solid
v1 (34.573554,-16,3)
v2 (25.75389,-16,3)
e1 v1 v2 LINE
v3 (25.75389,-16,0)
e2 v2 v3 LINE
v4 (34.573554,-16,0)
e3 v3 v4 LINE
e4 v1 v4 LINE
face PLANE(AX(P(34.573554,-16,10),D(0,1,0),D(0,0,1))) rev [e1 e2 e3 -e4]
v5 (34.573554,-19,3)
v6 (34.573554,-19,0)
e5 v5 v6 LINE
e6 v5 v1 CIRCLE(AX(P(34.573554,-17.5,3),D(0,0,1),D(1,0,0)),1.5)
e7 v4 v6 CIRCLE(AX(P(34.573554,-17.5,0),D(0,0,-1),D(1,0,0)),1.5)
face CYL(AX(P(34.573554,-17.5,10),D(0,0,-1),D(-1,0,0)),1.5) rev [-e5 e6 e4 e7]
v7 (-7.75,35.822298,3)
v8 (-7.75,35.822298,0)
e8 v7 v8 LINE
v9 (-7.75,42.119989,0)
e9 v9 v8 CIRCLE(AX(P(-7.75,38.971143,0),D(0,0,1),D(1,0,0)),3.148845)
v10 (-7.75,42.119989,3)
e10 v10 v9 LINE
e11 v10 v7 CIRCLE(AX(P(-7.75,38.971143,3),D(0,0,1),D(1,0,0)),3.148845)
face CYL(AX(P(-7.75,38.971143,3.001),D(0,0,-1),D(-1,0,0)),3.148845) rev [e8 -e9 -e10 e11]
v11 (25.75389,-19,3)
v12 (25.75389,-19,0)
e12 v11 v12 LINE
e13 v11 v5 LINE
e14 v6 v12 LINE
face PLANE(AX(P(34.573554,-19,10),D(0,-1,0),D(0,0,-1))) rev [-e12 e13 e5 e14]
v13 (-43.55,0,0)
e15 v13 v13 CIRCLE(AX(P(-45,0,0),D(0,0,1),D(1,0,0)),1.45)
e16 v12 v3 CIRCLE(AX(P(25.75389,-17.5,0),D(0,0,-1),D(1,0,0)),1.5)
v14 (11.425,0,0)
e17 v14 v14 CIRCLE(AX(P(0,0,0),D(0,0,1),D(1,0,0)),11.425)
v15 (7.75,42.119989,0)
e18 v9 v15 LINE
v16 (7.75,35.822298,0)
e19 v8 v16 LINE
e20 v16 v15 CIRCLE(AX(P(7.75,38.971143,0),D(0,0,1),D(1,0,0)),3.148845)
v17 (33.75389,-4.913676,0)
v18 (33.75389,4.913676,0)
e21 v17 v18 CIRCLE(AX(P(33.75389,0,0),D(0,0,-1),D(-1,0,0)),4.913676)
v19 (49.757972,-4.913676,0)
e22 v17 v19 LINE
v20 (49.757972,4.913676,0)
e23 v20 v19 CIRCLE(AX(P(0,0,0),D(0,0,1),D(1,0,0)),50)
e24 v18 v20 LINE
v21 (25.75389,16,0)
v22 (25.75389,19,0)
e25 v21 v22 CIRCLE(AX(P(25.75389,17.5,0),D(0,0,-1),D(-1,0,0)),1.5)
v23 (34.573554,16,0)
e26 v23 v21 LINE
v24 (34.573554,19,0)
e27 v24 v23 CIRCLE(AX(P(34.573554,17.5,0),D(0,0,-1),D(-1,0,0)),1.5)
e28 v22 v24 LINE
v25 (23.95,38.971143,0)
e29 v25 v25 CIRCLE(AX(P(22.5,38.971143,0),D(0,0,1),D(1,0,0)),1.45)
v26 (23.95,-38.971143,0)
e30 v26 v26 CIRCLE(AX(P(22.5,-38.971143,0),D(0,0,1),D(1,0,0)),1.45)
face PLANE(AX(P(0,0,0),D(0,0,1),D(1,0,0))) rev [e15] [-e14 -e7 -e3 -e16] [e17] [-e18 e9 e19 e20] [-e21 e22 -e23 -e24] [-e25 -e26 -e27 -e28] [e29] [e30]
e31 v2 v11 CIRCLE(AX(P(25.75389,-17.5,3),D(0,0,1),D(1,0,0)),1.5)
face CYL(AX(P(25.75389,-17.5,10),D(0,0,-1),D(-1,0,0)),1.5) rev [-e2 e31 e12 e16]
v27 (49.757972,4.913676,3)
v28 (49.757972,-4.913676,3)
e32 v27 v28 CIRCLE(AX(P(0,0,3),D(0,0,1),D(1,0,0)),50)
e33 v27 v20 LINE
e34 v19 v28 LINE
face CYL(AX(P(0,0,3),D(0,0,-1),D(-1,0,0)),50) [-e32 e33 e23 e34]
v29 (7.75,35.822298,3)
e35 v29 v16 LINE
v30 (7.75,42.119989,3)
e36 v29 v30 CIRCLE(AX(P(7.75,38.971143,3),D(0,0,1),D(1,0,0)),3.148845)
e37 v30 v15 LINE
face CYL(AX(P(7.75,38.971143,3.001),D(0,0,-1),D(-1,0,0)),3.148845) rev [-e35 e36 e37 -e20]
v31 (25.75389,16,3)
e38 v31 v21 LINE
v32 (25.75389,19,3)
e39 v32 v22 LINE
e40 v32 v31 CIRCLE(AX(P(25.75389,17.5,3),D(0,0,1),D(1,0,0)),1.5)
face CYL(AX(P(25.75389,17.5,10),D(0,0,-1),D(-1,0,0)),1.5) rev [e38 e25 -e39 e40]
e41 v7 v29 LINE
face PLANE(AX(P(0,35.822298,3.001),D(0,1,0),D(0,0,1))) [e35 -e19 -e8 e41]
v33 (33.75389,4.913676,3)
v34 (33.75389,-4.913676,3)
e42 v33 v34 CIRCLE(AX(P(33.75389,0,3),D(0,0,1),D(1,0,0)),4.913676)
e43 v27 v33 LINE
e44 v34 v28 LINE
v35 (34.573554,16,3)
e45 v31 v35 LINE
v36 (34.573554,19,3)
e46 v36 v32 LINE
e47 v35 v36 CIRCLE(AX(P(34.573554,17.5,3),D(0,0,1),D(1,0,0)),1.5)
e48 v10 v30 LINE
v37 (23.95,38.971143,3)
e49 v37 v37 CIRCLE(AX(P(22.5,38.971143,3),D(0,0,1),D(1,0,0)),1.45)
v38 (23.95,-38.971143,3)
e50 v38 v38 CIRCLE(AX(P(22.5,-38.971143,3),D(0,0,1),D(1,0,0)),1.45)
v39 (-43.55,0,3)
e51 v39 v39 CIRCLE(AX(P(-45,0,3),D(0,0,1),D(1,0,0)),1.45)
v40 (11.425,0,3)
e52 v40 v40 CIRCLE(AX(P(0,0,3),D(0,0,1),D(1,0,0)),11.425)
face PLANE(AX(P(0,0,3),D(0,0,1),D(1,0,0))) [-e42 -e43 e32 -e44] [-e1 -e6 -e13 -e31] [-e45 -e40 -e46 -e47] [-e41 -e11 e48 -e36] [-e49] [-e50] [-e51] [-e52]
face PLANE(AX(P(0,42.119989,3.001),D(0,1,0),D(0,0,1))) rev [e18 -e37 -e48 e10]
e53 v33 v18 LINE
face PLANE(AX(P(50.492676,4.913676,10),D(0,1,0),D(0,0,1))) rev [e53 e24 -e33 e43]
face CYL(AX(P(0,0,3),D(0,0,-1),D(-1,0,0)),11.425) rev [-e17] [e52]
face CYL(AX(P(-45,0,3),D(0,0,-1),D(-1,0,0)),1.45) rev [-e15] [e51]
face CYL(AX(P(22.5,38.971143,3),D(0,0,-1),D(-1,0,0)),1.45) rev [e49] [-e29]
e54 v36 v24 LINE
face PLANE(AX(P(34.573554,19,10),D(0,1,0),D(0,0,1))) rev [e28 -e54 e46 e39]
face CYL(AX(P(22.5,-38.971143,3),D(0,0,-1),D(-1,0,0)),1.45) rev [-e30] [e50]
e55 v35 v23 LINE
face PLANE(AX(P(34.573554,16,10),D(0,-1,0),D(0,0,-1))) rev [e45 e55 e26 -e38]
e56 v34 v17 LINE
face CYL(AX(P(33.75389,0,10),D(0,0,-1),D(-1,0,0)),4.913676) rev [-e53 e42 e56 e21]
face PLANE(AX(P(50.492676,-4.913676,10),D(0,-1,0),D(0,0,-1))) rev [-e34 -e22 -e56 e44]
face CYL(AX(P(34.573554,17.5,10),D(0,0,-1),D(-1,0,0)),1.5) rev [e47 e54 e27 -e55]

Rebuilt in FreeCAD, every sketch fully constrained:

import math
import FreeCAD as App
import Part
import Sketcher
from FreeCAD import Vector

doc = App.newDocument("Part")
body = doc.addObject("PartDesign::Body", "Body")

# Sketch on XY plane
sketch1 = body.newObject("Sketcher::SketchObject", "Sketch")
sketch1.AttachmentSupport = (doc.getObject("XY_Plane"), [""])
sketch1.MapMode = "FlatFace"
sketch1.addGeometry([
    Part.Circle(Vector(0, 0, 0), Vector(0, 0, 1), 50),  # 0
    Part.Circle(Vector(-45, 0, 0), Vector(0, 0, 1), 1.45),  # 1
    Part.Circle(Vector(22.5, -38.971143, 0), Vector(0, 0, 1), 1.45),  # 2
    Part.Circle(Vector(0, 0, 0), Vector(0, 0, 1), 11.425),  # 3
    Part.Circle(Vector(22.5, 38.971143, 0), Vector(0, 0, 1), 1.45),  # 4
], False)
sketch1.addConstraint([
    Sketcher.Constraint("Coincident", 0, 3, -1, 1),
    Sketcher.Constraint("Coincident", 3, 3, -1, 1),
    Sketcher.Constraint("Equal", 1, 2),
    Sketcher.Constraint("Equal", 2, 4),
    Sketcher.Constraint("Symmetric", 2, 3, 4, 3, -1),
    Sketcher.Constraint("PointOnObject", 1, 3, -1),
    Sketcher.Constraint("Diameter", 0, 100.0),
    Sketcher.Constraint("Diameter", 1, 2.9),
    Sketcher.Constraint("Diameter", 3, 22.85),
    Sketcher.Constraint("DistanceX", 1, 3, -1, 1, 45.0),
    Sketcher.Constraint("DistanceX", -1, 1, 2, 3, 22.5),
    Sketcher.Constraint("DistanceY", 2, 3, -1, 1, 38.971143),
])
pad1 = body.newObject("PartDesign::Pad", "Pad")
pad1.Profile = sketch1
pad1.Length = 3

# Sketch on XY plane
sketch2 = body.newObject("Sketcher::SketchObject", "Sketch001")
sketch2.AttachmentSupport = (doc.getObject("XY_Plane"), [""])
sketch2.MapMode = "FlatFace"
sketch2.addGeometry([
    Part.LineSegment(Vector(-7.75, 35.822298, 0), Vector(7.75, 35.822298, 0)),
    Part.ArcOfCircle(Part.Circle(Vector(7.75, 38.971143, 0), Vector(0, 0, 1), 3.148845), math.radians(-90), math.radians(90)),
    Part.LineSegment(Vector(7.75, 42.119989, 0), Vector(-7.75, 42.119989, 0)),
    Part.ArcOfCircle(Part.Circle(Vector(-7.75, 38.971143, 0), Vector(0, 0, 1), 3.148845), math.radians(90), math.radians(270)),
], False)
sketch2.addConstraint([
    Sketcher.Constraint("Tangent", 0, 2, 1, 1),
    Sketcher.Constraint("Tangent", 1, 2, 2, 1),
    Sketcher.Constraint("Tangent", 2, 2, 3, 1),
    Sketcher.Constraint("Tangent", 3, 2, 0, 1),
    Sketcher.Constraint("Horizontal", 0),
    Sketcher.Constraint("Horizontal", 2),
    Sketcher.Constraint("DistanceX", 0, 1, 0, 2, 15.5),
    Sketcher.Constraint("DistanceX", -1, 1, 1, 3, 7.75),
    Sketcher.Constraint("Radius", 1, 3.148845),
    Sketcher.Constraint("DistanceY", -1, 1, 1, 2, 42.119989),
])
pocket1 = body.newObject("PartDesign::Pocket", "Pocket")
pocket1.Profile = sketch2
pocket1.Type = "UpToFirst"
pocket1.Reversed = True

# Sketch on XY plane
sketch3 = body.newObject("Sketcher::SketchObject", "Sketch002")
sketch3.AttachmentSupport = (doc.getObject("XY_Plane"), [""])
sketch3.MapMode = "FlatFace"
sketch3.addGeometry([
    Part.LineSegment(Vector(33.75389, 4.913676, 0), Vector(50.492676, 4.913676, 0)),  # 0
    Part.ArcOfCircle(Part.Circle(Vector(50.492676, 0, 0), Vector(0, 0, 1), 4.913676), math.radians(-90), math.radians(90)),  # 1
    Part.LineSegment(Vector(50.492676, -4.913676, 0), Vector(33.75389, -4.913676, 0)),  # 2
    Part.ArcOfCircle(Part.Circle(Vector(33.75389, 0, 0), Vector(0, 0, 1), 4.913676), math.radians(90), math.radians(270)),  # 3
    Part.LineSegment(Vector(25.75389, 19, 0), Vector(34.573554, 19, 0)),  # 4
    Part.ArcOfCircle(Part.Circle(Vector(34.573554, 17.5, 0), Vector(0, 0, 1), 1.5), math.radians(-90), math.radians(90)),  # 5
    Part.LineSegment(Vector(34.573554, 16, 0), Vector(25.75389, 16, 0)),  # 6
    Part.ArcOfCircle(Part.Circle(Vector(25.75389, 17.5, 0), Vector(0, 0, 1), 1.5), math.radians(90), math.radians(270)),  # 7
    Part.LineSegment(Vector(34.573554, -19, 0), Vector(25.75389, -19, 0)),  # 8
    Part.ArcOfCircle(Part.Circle(Vector(25.75389, -17.5, 0), Vector(0, 0, 1), 1.5), math.radians(90), math.radians(270)),  # 9
    Part.LineSegment(Vector(25.75389, -16, 0), Vector(34.573554, -16, 0)),  # 10
    Part.ArcOfCircle(Part.Circle(Vector(34.573554, -17.5, 0), Vector(0, 0, 1), 1.5), math.radians(-90), math.radians(90)),  # 11
], False)
sketch3.addConstraint([
    Sketcher.Constraint("Tangent", 0, 2, 1, 2),
    Sketcher.Constraint("Tangent", 1, 1, 2, 1),
    Sketcher.Constraint("Tangent", 2, 2, 3, 2),
    Sketcher.Constraint("Tangent", 3, 1, 0, 1),
    Sketcher.Constraint("Tangent", 4, 2, 5, 2),
    Sketcher.Constraint("Tangent", 5, 1, 6, 1),
    Sketcher.Constraint("Tangent", 6, 2, 7, 2),
    Sketcher.Constraint("Tangent", 7, 1, 4, 1),
    Sketcher.Constraint("Tangent", 8, 2, 9, 2),
    Sketcher.Constraint("Tangent", 9, 1, 10, 1),
    Sketcher.Constraint("Tangent", 10, 2, 11, 2),
    Sketcher.Constraint("Tangent", 11, 1, 8, 1),
    Sketcher.Constraint("Horizontal", 0),
    Sketcher.Constraint("Horizontal", 2),
    Sketcher.Constraint("Horizontal", 4),
    Sketcher.Constraint("Horizontal", 6),
    Sketcher.Constraint("Horizontal", 8),
    Sketcher.Constraint("Horizontal", 10),
    Sketcher.Constraint("Equal", 7, 9),
    Sketcher.Constraint("Symmetric", 7, 3, 9, 3, -1),
    Sketcher.Constraint("PointOnObject", 1, 3, -1),
    Sketcher.Constraint("Vertical", 5, 3, 11, 3),
    Sketcher.Constraint("Radius", 5, 1.5),
    Sketcher.Constraint("DistanceY", -1, 1, 4, 2, 19.0),
    Sketcher.Constraint("DistanceX", 7, 3, 3, 3, 8.0),
    Sketcher.Constraint("Radius", 1, 4.913676),
    Sketcher.Constraint("DistanceX", 0, 1, 0, 2, 16.738786),
    Sketcher.Constraint("DistanceX", 4, 1, 4, 2, 8.819664),
    Sketcher.Constraint("DistanceX", -1, 1, 3, 3, 33.75389),
])
pocket2 = body.newObject("PartDesign::Pocket", "Pocket001")
pocket2.Profile = sketch3
pocket2.Length = 10
pocket2.Reversed = True

doc.recompute()
